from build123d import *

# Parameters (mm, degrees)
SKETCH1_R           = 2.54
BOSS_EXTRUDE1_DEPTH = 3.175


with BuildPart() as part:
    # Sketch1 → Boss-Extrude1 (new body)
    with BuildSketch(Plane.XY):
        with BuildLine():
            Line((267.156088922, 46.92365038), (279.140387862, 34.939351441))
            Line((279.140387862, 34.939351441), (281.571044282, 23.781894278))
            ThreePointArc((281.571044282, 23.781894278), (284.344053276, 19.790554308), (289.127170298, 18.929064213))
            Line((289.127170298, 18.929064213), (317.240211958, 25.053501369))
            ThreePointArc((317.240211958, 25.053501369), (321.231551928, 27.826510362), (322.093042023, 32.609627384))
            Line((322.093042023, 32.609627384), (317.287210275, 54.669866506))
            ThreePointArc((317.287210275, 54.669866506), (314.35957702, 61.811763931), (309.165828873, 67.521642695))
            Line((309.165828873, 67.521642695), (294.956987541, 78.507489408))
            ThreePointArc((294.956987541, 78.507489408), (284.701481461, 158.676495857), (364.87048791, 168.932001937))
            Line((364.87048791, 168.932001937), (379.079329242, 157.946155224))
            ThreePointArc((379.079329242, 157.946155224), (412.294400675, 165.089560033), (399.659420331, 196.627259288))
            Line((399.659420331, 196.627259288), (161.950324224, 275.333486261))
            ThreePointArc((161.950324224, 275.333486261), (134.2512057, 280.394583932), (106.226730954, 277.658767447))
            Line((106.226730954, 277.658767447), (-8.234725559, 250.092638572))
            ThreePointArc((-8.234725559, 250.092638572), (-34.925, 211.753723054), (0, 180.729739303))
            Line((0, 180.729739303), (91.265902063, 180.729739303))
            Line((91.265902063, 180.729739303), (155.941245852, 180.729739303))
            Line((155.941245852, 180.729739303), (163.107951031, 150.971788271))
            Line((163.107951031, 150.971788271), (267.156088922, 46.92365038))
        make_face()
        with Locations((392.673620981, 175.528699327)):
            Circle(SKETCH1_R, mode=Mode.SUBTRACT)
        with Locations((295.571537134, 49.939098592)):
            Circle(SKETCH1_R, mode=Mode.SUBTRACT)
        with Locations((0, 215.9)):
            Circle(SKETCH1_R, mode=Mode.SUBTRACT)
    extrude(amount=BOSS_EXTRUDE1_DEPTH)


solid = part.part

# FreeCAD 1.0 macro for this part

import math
import FreeCAD as App
import Part
import Sketcher
Q = App.Units.Quantity

doc = App.newDocument("Part")
body = doc.addObject("PartDesign::Body", "Body")

# Sketch on XY plane
sketch1 = body.newObject("Sketcher::SketchObject", "Sketch")
sketch1.AttachmentSupport = (doc.getObject("XY_Plane"), [""])
sketch1.MapMode = "FlatFace"
sketch1.addGeometry(Part.LineSegment(App.Vector(267.156089, 46.92365, 0), App.Vector(279.140388, 34.939351, 0)), False)
sketch1.addGeometry(Part.LineSegment(App.Vector(279.140388, 34.939351, 0), App.Vector(281.571044, 23.781894, 0)), False)
sketch1.addGeometry(Part.ArcOfCircle(Part.Circle(App.Vector(287.775522, 25.133542, 0), App.Vector(0, 0, 1), 6.35), math.radians(-167.710112), math.radians(-77.710112)), False)
sketch1.addGeometry(Part.LineSegment(App.Vector(289.12717, 18.929064, 0), App.Vector(317.240212, 25.053501, 0)), False)
sketch1.addGeometry(Part.ArcOfCircle(Part.Circle(App.Vector(315.888564, 31.257979, 0), App.Vector(0, 0, 1), 6.35), math.radians(-77.710112), math.radians(12.289888)), False)
sketch1.addGeometry(Part.LineSegment(App.Vector(322.093042, 32.609627, 0), App.Vector(317.28721, 54.669867, 0)), False)
sketch1.addGeometry(Part.ArcOfCircle(Part.Circle(App.Vector(295.571537, 49.939099, 0), App.Vector(0, 0, 1), 22.225), math.radians(12.289888), math.radians(52.289888)), False)
sketch1.addGeometry(Part.LineSegment(App.Vector(309.165829, 67.521643, 0), App.Vector(294.956988, 78.507489, 0)), False)
sketch1.addGeometry(Part.ArcOfCircle(Part.Circle(App.Vector(329.913738, 123.719746, 0), App.Vector(0, 0, 1), 57.15), math.radians(52.289888), math.radians(232.289888)), False)
sketch1.addGeometry(Part.LineSegment(App.Vector(364.870488, 168.932002, 0), App.Vector(379.079329, 157.946155, 0)), False)
sketch1.addGeometry(Part.ArcOfCircle(Part.Circle(App.Vector(392.673621, 175.528699, 0), App.Vector(0, 0, 1), 22.225), math.radians(-127.710112), math.radians(71.680131)), False)
sketch1.addGeometry(Part.LineSegment(App.Vector(399.65942, 196.627259, 0), App.Vector(161.950324, 275.333486, 0)), False)
sketch1.addGeometry(Part.ArcOfCircle(Part.Circle(App.Vector(130.015241, 178.882926, 0), App.Vector(0, 0, 1), 101.6), math.radians(71.680131), math.radians(103.540868)), False)
sketch1.addGeometry(Part.LineSegment(App.Vector(106.226731, 277.658767, 0), App.Vector(-8.234726, 250.092639, 0)), False)
sketch1.addGeometry(Part.ArcOfCircle(Part.Circle(App.Vector(0, 215.9, 0), App.Vector(0, 0, 1), 35.170261), math.radians(103.540868), math.radians(270)), False)
sketch1.addGeometry(Part.LineSegment(App.Vector(0, 180.729739, 0), App.Vector(155.941246, 180.729739, 0)), False)
sketch1.addGeometry(Part.LineSegment(App.Vector(155.941246, 180.729739, 0), App.Vector(163.107951, 150.971788, 0)), False)
sketch1.addGeometry(Part.LineSegment(App.Vector(163.107951, 150.971788, 0), App.Vector(267.156089, 46.92365, 0)), False)
sketch1.addGeometry(Part.Circle(App.Vector(295.571537, 49.939099, 0), App.Vector(0, 0, 1), 2.54), False)
sketch1.addGeometry(Part.Circle(App.Vector(0, 215.9, 0), App.Vector(0, 0, 1), 2.54), False)
sketch1.addGeometry(Part.Circle(App.Vector(392.673621, 175.528699, 0), App.Vector(0, 0, 1), 2.54), False)
sketch1.addConstraint(Sketcher.Constraint("Coincident", 0, 2, 1, 1))
sketch1.addConstraint(Sketcher.Constraint("Coincident", 1, 2, 2, 1))
sketch1.addConstraint(Sketcher.Constraint("Coincident", 2, 2, 3, 1))
sketch1.addConstraint(Sketcher.Constraint("Coincident", 3, 2, 4, 1))
sketch1.addConstraint(Sketcher.Constraint("Coincident", 4, 2, 5, 1))
sketch1.addConstraint(Sketcher.Constraint("Coincident", 5, 2, 6, 1))
sketch1.addConstraint(Sketcher.Constraint("Coincident", 6, 2, 7, 1))
sketch1.addConstraint(Sketcher.Constraint("Coincident", 7, 2, 8, 2))
sketch1.addConstraint(Sketcher.Constraint("Coincident", 8, 1, 9, 1))
sketch1.addConstraint(Sketcher.Constraint("Coincident", 9, 2, 10, 1))
sketch1.addConstraint(Sketcher.Constraint("Coincident", 10, 2, 11, 1))
sketch1.addConstraint(Sketcher.Constraint("Coincident", 11, 2, 12, 1))
sketch1.addConstraint(Sketcher.Constraint("Coincident", 12, 2, 13, 1))
sketch1.addConstraint(Sketcher.Constraint("Coincident", 13, 2, 14, 1))
sketch1.addConstraint(Sketcher.Constraint("Coincident", 14, 2, 15, 1))
sketch1.addConstraint(Sketcher.Constraint("Coincident", 15, 2, 16, 1))
sketch1.addConstraint(Sketcher.Constraint("Coincident", 16, 2, 17, 1))
sketch1.addConstraint(Sketcher.Constraint("Coincident", 17, 2, 0, 1))
sketch1.addConstraint(Sketcher.Constraint("Horizontal", 15))
sketch1.addConstraint(Sketcher.Constraint("Coincident", 18, 3, 6, 3))
sketch1.addConstraint(Sketcher.Constraint("Coincident", 19, 3, 14, 3))
sketch1.addConstraint(Sketcher.Constraint("Coincident", 20, 3, 10, 3))
sketch1.addConstraint(Sketcher.Constraint("PointOnObject", 14, 3, -2))
sketch1.addConstraint(Sketcher.Constraint("PointOnObject", 14, 2, -2))
sketch1.addConstraint(Sketcher.Constraint("Radius", 12, Q("4 in")))
sketch1.addConstraint(Sketcher.Constraint("Diameter", 18, Q("0.2 in")))
sketch1.addConstraint(Sketcher.Constraint("Diameter", 19, Q("0.2 in")))
sketch1.addConstraint(Sketcher.Constraint("Diameter", 20, Q("0.2 in")))
sketch1.addConstraint(Sketcher.Constraint("Radius", 2, Q("0.25 in")))
sketch1.addConstraint(Sketcher.Constraint("Radius", 4, Q("0.25 in")))
sketch1.addConstraint(Sketcher.Constraint("Radius", 8, Q("2.25 in")))
sketch1.addConstraint(Sketcher.Constraint("Radius", 6, Q("0.875 in")))
sketch1.addConstraint(Sketcher.Constraint("Radius", 10, Q("0.875 in")))
sketch1.addConstraint(Sketcher.Constraint("DistanceY", -1, 1, 14, 3, Q("8.5 in")))
sketch1.addConstraint(Sketcher.Constraint("Radius", 14, Q("35.170261 mm")))
sketch1.addConstraint(Sketcher.Constraint("DistanceX", 7, 2, 8, 1, Q("2.7525 in")))
sketch1.addConstraint(Sketcher.Constraint("DistanceX", 6, 2, 9, 2, Q("2.7525 in")))
sketch1.addConstraint(Sketcher.Constraint("DistanceY", -1, 1, 6, 3, Q("49.939099 mm")))
sketch1.addConstraint(Sketcher.Constraint("DistanceY", -1, 1, 10, 3, Q("175.528699 mm")))
sketch1.addConstraint(Sketcher.Constraint("DistanceY", -1, 1, 3, 2, Q("25.053501 mm")))
sketch1.addConstraint(Sketcher.Constraint("DistanceY", -1, 1, 8, 1, Q("168.932002 mm")))
sketch1.addConstraint(Sketcher.Constraint("DistanceX", 6, 3, 8, 3, Q("34.342201 mm")))
sketch1.addConstraint(Sketcher.Constraint("DistanceX", 2, 3, 10, 3, Q("104.898099 mm")))
sketch1.addConstraint(Sketcher.Constraint("DistanceX", 3, 2, 5, 2, Q("0.046998 mm")))
sketch1.addConstraint(Sketcher.Constraint("DistanceX", 0, 2, 7, 2, Q("15.8166 mm")))
sketch1.addConstraint(Sketcher.Constraint("DistanceX", 10, 3, 10, 2, Q("6.985799 mm")))
sketch1.addConstraint(Sketcher.Constraint("DistanceY", 14, 2, 13, 2, Q("69.362899 mm")))
sketch1.addConstraint(Sketcher.Constraint("DistanceY", 7, 2, 16, 2, Q("72.464299 mm")))
sketch1.addConstraint(Sketcher.Constraint("DistanceX", 17, 2, 0, 2, Q("11.984299 mm")))
sketch1.addConstraint(Sketcher.Constraint("DistanceY", 0, 2, 17, 2, Q("11.984299 mm")))
sketch1.addConstraint(Sketcher.Constraint("Distance", 11, Q("250.400249 mm")))
sketch1.addConstraint(Sketcher.Constraint("Distance", 16, Q("30.608778 mm")))
sketch1.addConstraint(Sketcher.Constraint("DistanceX", 15, 1, 15, 2, Q("155.941246 mm")))
sketch1.addConstraint(Sketcher.Constraint("DistanceY", -1, 1, 4, 3, Q("31.257979 mm")))
sketch1.addConstraint(Sketcher.Constraint("DistanceX", -1, 1, 10, 3, Q("392.673621 mm")))
sketch1.addConstraint(Sketcher.Constraint("DistanceX", -1, 1, 12, 3, Q("130.015241 mm")))
sketch1.addConstraint(Sketcher.Constraint("DistanceY", -1, 1, 0, 2, Q("34.939351 mm")))
sketch1.addConstraint(Sketcher.Constraint("DistanceX", -1, 1, 2, 2, Q("289.12717 mm")))
sketch1.addConstraint(Sketcher.Constraint("DistanceX", -1, 1, 3, 2, Q("317.240212 mm")))
sketch1.addConstraint(Sketcher.Constraint("DistanceX", -1, 1, 6, 2, Q("309.165829 mm")))
sketch1.addConstraint(Sketcher.Constraint("DistanceX", -1, 1, 12, 2, Q("106.226731 mm")))
sketch1.addConstraint(Sketcher.Constraint("DistanceX", -1, 1, 17, 2, Q("267.156089 mm")))
sketch1.addConstraint(Sketcher.Constraint("DistanceY", 8, 3, 12, 3, Q("55.163181 mm")))
sketch1.addConstraint(Sketcher.Constraint("DistanceY", 2, 3, 0, 2, Q("9.805809 mm")))
sketch1.addConstraint(Sketcher.Constraint("DistanceX", 0, 2, 6, 3, Q("16.431149 mm")))
sketch1.addConstraint(Sketcher.Constraint("DistanceX", 1, 2, 2, 3, Q("6.204478 mm")))
sketch1.addConstraint(Sketcher.Constraint("DistanceX", 4, 3, 4, 2, Q("6.204478 mm")))
pad1 = body.newObject("PartDesign::Pad", "Pad")
pad1.Profile = sketch1
pad1.Length = Q("0.125 in")

doc.recompute()
